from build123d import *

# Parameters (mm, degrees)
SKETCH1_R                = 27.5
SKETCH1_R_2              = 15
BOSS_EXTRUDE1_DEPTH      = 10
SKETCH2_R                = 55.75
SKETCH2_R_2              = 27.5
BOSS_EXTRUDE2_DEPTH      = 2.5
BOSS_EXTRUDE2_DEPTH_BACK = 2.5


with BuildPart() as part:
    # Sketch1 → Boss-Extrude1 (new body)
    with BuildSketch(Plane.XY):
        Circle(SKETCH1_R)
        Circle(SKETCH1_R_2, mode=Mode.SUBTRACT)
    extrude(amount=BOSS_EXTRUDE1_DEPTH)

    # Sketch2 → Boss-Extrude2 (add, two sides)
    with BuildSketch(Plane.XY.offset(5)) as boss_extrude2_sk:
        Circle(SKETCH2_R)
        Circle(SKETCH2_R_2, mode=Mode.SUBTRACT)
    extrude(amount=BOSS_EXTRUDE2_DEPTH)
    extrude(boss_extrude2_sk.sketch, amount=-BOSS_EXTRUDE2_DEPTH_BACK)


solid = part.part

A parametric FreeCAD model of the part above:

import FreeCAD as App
import Part
import Sketcher

doc = App.newDocument("Part")
body = doc.addObject("PartDesign::Body", "Body")

sketch1 = body.newObject("Sketcher::SketchObject", "Sketch")
sketch1.AttachmentSupport = (doc.getObject("XY_Plane"), [""])
sketch1.MapMode = "FlatFace"
sketch1.addGeometry(Part.Circle(App.Vector(0, 0, 0), App.Vector(0, 0, 1), 28), False)
sketch1.addGeometry(Part.Circle(App.Vector(0, 0, 0), App.Vector(0, 0, 1), 15), False)
sketch1.addConstraint(Sketcher.Constraint("Coincident", 0, 3, -1, 1))
sketch1.addConstraint(Sketcher.Constraint("Coincident", 1, 3, -1, 1))
sketch1.addConstraint(Sketcher.Constraint("Diameter", 0, 55.0))
sketch1.addConstraint(Sketcher.Constraint("Diameter", 1, 30.0))
pad1 = body.newObject("PartDesign::Pad", "Pad")
pad1.Profile = sketch1
pad1.Length = 10

sketch2 = body.newObject("Sketcher::SketchObject", "Sketch001")
sketch2.AttachmentSupport = (doc.getObject("XY_Plane"), [""])
sketch2.MapMode = "FlatFace"
sketch2.AttachmentOffset = App.Placement(App.Vector(0, 0, 5), App.Rotation())
sketch2.addGeometry(Part.Circle(App.Vector(0, 0, 0), App.Vector(0, 0, 1), 56), False)
sketch2.addGeometry(Part.Circle(App.Vector(0, 0, 0), App.Vector(0, 0, 1), 28), False)
sketch2.addConstraint(Sketcher.Constraint("Coincident", 0, 3, -1, 1))
sketch2.addConstraint(Sketcher.Constraint("Coincident", 1, 3, -1, 1))
sketch2.addConstraint(Sketcher.Constraint("Diameter", 1, 55.0))
sketch2.addConstraint(Sketcher.Constraint("Diameter", 0, 111.5))
pad2 = body.newObject("PartDesign::Pad", "Pad001")
pad2.Profile = sketch2
pad2.Type = "TwoLengths"
pad2.Length = 2.5
pad2.Length2 = 2.5

doc.recompute()
